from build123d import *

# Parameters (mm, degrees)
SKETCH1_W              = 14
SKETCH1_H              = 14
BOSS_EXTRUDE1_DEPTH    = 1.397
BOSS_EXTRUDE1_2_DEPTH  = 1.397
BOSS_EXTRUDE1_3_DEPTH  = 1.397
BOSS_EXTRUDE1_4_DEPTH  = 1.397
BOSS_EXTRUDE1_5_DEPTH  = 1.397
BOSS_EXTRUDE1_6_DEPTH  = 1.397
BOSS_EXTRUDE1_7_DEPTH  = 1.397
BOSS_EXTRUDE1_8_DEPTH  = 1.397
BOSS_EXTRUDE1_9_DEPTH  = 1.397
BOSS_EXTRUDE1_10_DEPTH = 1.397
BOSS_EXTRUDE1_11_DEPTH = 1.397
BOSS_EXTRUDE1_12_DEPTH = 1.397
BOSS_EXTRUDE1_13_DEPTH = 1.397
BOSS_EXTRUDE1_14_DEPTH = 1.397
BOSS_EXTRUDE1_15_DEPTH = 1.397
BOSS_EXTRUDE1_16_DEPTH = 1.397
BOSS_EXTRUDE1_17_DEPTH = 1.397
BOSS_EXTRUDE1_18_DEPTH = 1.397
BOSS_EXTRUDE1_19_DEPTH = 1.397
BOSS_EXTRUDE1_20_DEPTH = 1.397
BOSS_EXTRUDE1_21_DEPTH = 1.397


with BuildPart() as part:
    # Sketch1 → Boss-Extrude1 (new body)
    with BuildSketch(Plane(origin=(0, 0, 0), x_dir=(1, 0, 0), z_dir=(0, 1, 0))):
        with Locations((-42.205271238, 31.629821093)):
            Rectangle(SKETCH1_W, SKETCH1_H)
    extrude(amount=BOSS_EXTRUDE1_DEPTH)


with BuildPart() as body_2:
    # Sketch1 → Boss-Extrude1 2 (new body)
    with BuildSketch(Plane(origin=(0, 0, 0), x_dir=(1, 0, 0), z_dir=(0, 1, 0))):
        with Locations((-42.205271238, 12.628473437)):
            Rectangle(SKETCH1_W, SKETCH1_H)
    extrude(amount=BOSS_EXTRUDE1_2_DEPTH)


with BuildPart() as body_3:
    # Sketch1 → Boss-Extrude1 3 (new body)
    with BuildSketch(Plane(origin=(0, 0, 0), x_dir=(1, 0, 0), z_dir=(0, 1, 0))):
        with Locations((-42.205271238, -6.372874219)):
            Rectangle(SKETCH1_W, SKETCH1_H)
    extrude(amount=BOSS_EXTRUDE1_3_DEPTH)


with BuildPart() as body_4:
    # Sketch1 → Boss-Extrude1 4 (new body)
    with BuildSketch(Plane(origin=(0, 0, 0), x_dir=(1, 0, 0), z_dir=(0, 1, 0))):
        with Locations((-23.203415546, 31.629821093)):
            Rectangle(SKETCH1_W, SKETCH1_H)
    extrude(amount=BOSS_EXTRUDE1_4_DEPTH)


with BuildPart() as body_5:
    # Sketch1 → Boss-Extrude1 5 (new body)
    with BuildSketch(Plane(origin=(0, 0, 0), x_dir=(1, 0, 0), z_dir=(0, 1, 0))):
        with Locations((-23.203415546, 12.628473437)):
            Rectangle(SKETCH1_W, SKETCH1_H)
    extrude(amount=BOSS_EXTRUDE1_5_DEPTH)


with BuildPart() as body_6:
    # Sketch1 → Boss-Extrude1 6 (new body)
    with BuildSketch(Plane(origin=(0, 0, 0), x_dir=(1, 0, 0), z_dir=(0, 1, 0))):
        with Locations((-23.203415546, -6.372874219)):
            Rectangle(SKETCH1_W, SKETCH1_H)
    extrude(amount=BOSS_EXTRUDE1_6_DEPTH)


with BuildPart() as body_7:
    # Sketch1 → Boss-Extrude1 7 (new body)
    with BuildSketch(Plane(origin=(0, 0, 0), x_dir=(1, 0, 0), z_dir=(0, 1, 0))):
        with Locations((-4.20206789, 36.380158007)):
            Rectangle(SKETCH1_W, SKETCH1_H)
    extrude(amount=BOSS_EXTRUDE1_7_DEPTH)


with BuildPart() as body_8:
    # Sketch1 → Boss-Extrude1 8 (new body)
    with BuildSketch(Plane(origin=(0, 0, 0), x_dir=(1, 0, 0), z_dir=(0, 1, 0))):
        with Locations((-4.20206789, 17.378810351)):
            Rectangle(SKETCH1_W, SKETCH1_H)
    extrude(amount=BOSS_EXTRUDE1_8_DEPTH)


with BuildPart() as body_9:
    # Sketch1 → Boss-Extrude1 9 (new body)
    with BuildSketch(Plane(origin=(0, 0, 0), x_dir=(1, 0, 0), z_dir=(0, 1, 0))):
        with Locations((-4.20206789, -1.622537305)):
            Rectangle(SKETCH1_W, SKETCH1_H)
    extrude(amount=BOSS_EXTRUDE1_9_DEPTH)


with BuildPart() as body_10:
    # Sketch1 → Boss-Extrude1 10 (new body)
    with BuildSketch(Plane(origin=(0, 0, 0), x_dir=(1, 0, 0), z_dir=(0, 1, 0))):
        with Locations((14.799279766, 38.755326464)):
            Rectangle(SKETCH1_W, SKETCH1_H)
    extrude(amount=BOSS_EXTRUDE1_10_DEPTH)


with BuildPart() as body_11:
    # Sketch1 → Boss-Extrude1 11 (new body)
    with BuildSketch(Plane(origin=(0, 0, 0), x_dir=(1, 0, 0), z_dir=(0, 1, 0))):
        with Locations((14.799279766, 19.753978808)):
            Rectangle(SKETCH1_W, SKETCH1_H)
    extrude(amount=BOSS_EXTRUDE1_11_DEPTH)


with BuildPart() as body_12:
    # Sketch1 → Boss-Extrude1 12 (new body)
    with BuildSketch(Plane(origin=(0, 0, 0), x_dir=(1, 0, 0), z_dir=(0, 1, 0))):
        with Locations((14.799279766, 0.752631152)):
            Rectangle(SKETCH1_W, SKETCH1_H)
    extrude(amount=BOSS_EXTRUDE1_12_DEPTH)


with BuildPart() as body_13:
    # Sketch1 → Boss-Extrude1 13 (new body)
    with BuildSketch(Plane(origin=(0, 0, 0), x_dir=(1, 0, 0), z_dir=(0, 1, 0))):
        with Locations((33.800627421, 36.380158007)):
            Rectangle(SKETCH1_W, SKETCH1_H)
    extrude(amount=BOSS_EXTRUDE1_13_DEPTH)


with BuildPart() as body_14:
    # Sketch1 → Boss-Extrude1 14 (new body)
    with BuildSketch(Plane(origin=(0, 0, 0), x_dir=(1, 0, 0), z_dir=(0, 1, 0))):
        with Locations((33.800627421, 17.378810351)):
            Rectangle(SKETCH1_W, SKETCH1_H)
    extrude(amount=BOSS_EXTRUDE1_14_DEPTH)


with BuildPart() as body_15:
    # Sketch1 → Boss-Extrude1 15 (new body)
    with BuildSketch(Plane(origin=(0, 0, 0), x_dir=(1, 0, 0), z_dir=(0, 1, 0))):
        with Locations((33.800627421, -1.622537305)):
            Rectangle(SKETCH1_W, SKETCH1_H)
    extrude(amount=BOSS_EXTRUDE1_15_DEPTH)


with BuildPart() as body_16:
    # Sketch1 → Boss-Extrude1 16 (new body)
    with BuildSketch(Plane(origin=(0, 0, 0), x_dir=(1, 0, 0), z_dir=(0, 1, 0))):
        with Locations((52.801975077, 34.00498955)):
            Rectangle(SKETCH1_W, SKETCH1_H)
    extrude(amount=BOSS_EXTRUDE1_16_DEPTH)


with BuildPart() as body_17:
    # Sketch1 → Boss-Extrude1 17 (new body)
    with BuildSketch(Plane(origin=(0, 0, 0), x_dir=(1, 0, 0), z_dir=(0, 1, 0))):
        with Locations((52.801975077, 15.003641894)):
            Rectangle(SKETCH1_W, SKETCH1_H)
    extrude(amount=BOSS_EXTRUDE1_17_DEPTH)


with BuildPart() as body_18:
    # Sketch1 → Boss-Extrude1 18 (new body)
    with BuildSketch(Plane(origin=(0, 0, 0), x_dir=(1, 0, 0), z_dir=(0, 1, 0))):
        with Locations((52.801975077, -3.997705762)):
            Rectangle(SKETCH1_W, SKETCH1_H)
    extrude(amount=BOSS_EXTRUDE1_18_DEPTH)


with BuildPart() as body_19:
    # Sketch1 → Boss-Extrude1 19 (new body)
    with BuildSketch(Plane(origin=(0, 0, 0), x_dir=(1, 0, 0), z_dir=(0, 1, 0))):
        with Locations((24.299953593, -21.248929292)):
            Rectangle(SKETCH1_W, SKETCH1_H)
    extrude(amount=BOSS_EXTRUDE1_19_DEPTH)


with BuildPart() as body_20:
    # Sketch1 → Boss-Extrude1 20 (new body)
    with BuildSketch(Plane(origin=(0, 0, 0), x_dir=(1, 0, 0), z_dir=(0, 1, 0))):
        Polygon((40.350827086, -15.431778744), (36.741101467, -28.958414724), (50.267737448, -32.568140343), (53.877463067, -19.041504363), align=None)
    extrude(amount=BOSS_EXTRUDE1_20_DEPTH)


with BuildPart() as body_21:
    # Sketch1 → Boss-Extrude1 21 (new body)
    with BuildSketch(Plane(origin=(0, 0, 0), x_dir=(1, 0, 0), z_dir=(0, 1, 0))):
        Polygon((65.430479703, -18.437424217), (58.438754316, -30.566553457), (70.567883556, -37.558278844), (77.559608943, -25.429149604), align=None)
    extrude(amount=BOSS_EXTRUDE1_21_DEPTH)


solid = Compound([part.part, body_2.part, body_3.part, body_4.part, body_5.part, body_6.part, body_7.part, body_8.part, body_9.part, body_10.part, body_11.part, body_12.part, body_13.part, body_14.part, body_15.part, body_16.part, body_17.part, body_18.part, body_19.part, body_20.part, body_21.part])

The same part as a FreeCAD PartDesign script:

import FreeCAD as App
import Part
import Sketcher
Q = App.Units.Quantity

doc = App.newDocument("Part")
params = doc.addObject("Spreadsheet::Sheet", "Params")
for row, (alias, value) in enumerate([
    ("sketch1_width", "14 mm"),
    ("pad1_length", "1.397 mm"),
    ("sketch2_width", "14 mm"),
    ("pad2_length", "1.397 mm"),
    ("sketch3_width", "14 mm"),
    ("pad3_length", "1.397 mm"),
    ("sketch4_width", "14 mm"),
    ("pad4_length", "1.397 mm"),
    ("sketch5_width", "14 mm"),
    ("pad5_length", "1.397 mm"),
    ("sketch6_width", "14 mm"),
    ("pad6_length", "1.397 mm"),
    ("sketch7_width", "14 mm"),
    ("pad7_length", "1.397 mm"),
    ("sketch8_width", "14 mm"),
    ("pad8_length", "1.397 mm"),
    ("sketch9_width", "14 mm"),
    ("pad9_length", "1.397 mm"),
    ("sketch10_width", "14 mm"),
    ("pad10_length", "1.397 mm"),
    ("sketch11_width", "14 mm"),
    ("pad11_length", "1.397 mm"),
    ("sketch12_width", "14 mm"),
    ("pad12_length", "1.397 mm"),
    ("sketch13_width", "14 mm"),
    ("pad13_length", "1.397 mm"),
    ("sketch14_width", "14 mm"),
    ("pad14_length", "1.397 mm"),
    ("sketch15_width", "14 mm"),
    ("pad15_length", "1.397 mm"),
    ("sketch16_width", "14 mm"),
    ("pad16_length", "1.397 mm"),
    ("sketch17_width", "14 mm"),
    ("pad17_length", "1.397 mm"),
    ("sketch18_width", "14 mm"),
    ("pad18_length", "1.397 mm"),
    ("sketch19_width", "14 mm"),
    ("pad19_length", "1.397 mm"),
    ("sketch20_length", "14 mm"),
    ("pad20_length", "1.397 mm"),
    ("sketch21_length", "14 mm"),
    ("pad21_length", "1.397 mm"),
], start=1):
    params.set(f"A{row}", alias)
    params.set(f"B{row}", "=" + value)
    params.setAlias(f"B{row}", alias)

body = doc.addObject("PartDesign::Body", "Body")

# Sketch on XZ plane
sketch1 = doc.addObject("Sketcher::SketchObject", "Sketch")
body.addObject(sketch1)
sketch1.AttachmentSupport = (doc.XZ_Plane, [""])
sketch1.MapMode = "FlatFace"
sketch1.addGeometry([
    Part.LineSegment(App.Vector(-49, -39, 0), App.Vector(-49, -25, 0)),
    Part.LineSegment(App.Vector(-49, -25, 0), App.Vector(-35, -25, 0)),
    Part.LineSegment(App.Vector(-35, -25, 0), App.Vector(-35, -39, 0)),
    Part.LineSegment(App.Vector(-35, -39, 0), App.Vector(-49, -39, 0)),
], False)
sketch1.addConstraint([
    Sketcher.Constraint("Coincident", 0, 2, 1, 1),
    Sketcher.Constraint("Coincident", 1, 2, 2, 1),
    Sketcher.Constraint("Coincident", 2, 2, 3, 1),
    Sketcher.Constraint("Coincident", 3, 2, 0, 1),
    Sketcher.Constraint("Vertical", 0),
    Sketcher.Constraint("Horizontal", 1),
    Sketcher.Constraint("Vertical", 2),
    Sketcher.Constraint("Horizontal", 3),
    Sketcher.Constraint("Equal", 3, 0),
    Sketcher.Constraint("DistanceX", 1, 1, 1, 2, Q("14 mm")),
    Sketcher.Constraint("DistanceX", 0, 2, -1, 1, Q("49.205271 mm")),
    Sketcher.Constraint("DistanceY", 0, 2, -1, 1, Q("24.629821 mm")),
])
sketch1.setExpression("Constraints[9]", "Params.sketch1_width")
pad1 = doc.addObject("PartDesign::Pad", "Pad")
body.addObject(pad1)
pad1.Profile = sketch1
pad1.setExpression("Length", "Params.pad1_length")
pad1.Reversed = True
body2 = doc.addObject("PartDesign::Body", "Body001")

# Sketch on XZ plane
sketch2 = doc.addObject("Sketcher::SketchObject", "Sketch001")
body2.addObject(sketch2)
sketch2.AttachmentSupport = (doc.getObject("XZ_Plane001"), [""])
sketch2.MapMode = "FlatFace"
sketch2.addGeometry([
    Part.LineSegment(App.Vector(-49, -20, 0), App.Vector(-49, -6, 0)),
    Part.LineSegment(App.Vector(-49, -6, 0), App.Vector(-35, -6, 0)),
    Part.LineSegment(App.Vector(-35, -6, 0), App.Vector(-35, -20, 0)),
    Part.LineSegment(App.Vector(-35, -20, 0), App.Vector(-49, -20, 0)),
], False)
sketch2.addConstraint([
    Sketcher.Constraint("Coincident", 0, 2, 1, 1),
    Sketcher.Constraint("Coincident", 1, 2, 2, 1),
    Sketcher.Constraint("Coincident", 2, 2, 3, 1),
    Sketcher.Constraint("Coincident", 3, 2, 0, 1),
    Sketcher.Constraint("Vertical", 0),
    Sketcher.Constraint("Horizontal", 1),
    Sketcher.Constraint("Vertical", 2),
    Sketcher.Constraint("Horizontal", 3),
    Sketcher.Constraint("Equal", 3, 0),
    Sketcher.Constraint("DistanceX", 1, 1, 1, 2, Q("14 mm")),
    Sketcher.Constraint("DistanceX", 0, 2, -1, 1, Q("49.205271 mm")),
    Sketcher.Constraint("DistanceY", 0, 2, -1, 1, Q("5.628473 mm")),
])
sketch2.setExpression("Constraints[9]", "Params.sketch2_width")
pad2 = doc.addObject("PartDesign::Pad", "Pad001")
body2.addObject(pad2)
pad2.Profile = sketch2
pad2.setExpression("Length", "Params.pad2_length")
pad2.Reversed = True
body3 = doc.addObject("PartDesign::Body", "Body002")

# Sketch on XZ plane
sketch3 = doc.addObject("Sketcher::SketchObject", "Sketch002")
body3.addObject(sketch3)
sketch3.AttachmentSupport = (doc.getObject("XZ_Plane002"), [""])
sketch3.MapMode = "FlatFace"
sketch3.addGeometry([
    Part.LineSegment(App.Vector(-49, -1, 0), App.Vector(-49, 13, 0)),
    Part.LineSegment(App.Vector(-49, 13, 0), App.Vector(-35, 13, 0)),
    Part.LineSegment(App.Vector(-35, 13, 0), App.Vector(-35, -1, 0)),
    Part.LineSegment(App.Vector(-35, -1, 0), App.Vector(-49, -1, 0)),
], False)
sketch3.addConstraint([
    Sketcher.Constraint("Coincident", 0, 2, 1, 1),
    Sketcher.Constraint("Coincident", 1, 2, 2, 1),
    Sketcher.Constraint("Coincident", 2, 2, 3, 1),
    Sketcher.Constraint("Coincident", 3, 2, 0, 1),
    Sketcher.Constraint("Vertical", 0),
    Sketcher.Constraint("Horizontal", 1),
    Sketcher.Constraint("Vertical", 2),
    Sketcher.Constraint("Horizontal", 3),
    Sketcher.Constraint("Equal", 3, 0),
    Sketcher.Constraint("DistanceX", 1, 1, 1, 2, Q("14 mm")),
    Sketcher.Constraint("DistanceX", 0, 2, -1, 1, Q("49.205271 mm")),
    Sketcher.Constraint("DistanceY", -1, 1, 0, 2, Q("13.372874 mm")),
])
sketch3.setExpression("Constraints[9]", "Params.sketch3_width")
pad3 = doc.addObject("PartDesign::Pad", "Pad002")
body3.addObject(pad3)
pad3.Profile = sketch3
pad3.setExpression("Length", "Params.pad3_length")
pad3.Reversed = True
body4 = doc.addObject("PartDesign::Body", "Body003")

# Sketch on XZ plane
sketch4 = doc.addObject("Sketcher::SketchObject", "Sketch003")
body4.addObject(sketch4)
sketch4.AttachmentSupport = (doc.getObject("XZ_Plane003"), [""])
sketch4.MapMode = "FlatFace"
sketch4.addGeometry([
    Part.LineSegment(App.Vector(-30, -39, 0), App.Vector(-30, -25, 0)),
    Part.LineSegment(App.Vector(-30, -25, 0), App.Vector(-16, -25, 0)),
    Part.LineSegment(App.Vector(-16, -25, 0), App.Vector(-16, -39, 0)),
    Part.LineSegment(App.Vector(-16, -39, 0), App.Vector(-30, -39, 0)),
], False)
sketch4.addConstraint([
    Sketcher.Constraint("Coincident", 0, 2, 1, 1),
    Sketcher.Constraint("Coincident", 1, 2, 2, 1),
    Sketcher.Constraint("Coincident", 2, 2, 3, 1),
    Sketcher.Constraint("Coincident", 3, 2, 0, 1),
    Sketcher.Constraint("Vertical", 0),
    Sketcher.Constraint("Horizontal", 1),
    Sketcher.Constraint("Vertical", 2),
    Sketcher.Constraint("Horizontal", 3),
    Sketcher.Constraint("Equal", 3, 0),
    Sketcher.Constraint("DistanceX", 1, 1, 1, 2, Q("14 mm")),
    Sketcher.Constraint("DistanceY", 0, 2, -1, 1, Q("24.629821 mm")),
    Sketcher.Constraint("DistanceX", 0, 2, -1, 1, Q("30.203416 mm")),
])
sketch4.setExpression("Constraints[9]", "Params.sketch4_width")
pad4 = doc.addObject("PartDesign::Pad", "Pad003")
body4.addObject(pad4)
pad4.Profile = sketch4
pad4.setExpression("Length", "Params.pad4_length")
pad4.Reversed = True
body5 = doc.addObject("PartDesign::Body", "Body004")

# Sketch on XZ plane
sketch5 = doc.addObject("Sketcher::SketchObject", "Sketch004")
body5.addObject(sketch5)
sketch5.AttachmentSupport = (doc.getObject("XZ_Plane004"), [""])
sketch5.MapMode = "FlatFace"
sketch5.addGeometry([
    Part.LineSegment(App.Vector(-30, -20, 0), App.Vector(-30, -6, 0)),
    Part.LineSegment(App.Vector(-30, -6, 0), App.Vector(-16, -6, 0)),
    Part.LineSegment(App.Vector(-16, -6, 0), App.Vector(-16, -20, 0)),
    Part.LineSegment(App.Vector(-16, -20, 0), App.Vector(-30, -20, 0)),
], False)
sketch5.addConstraint([
    Sketcher.Constraint("Coincident", 0, 2, 1, 1),
    Sketcher.Constraint("Coincident", 1, 2, 2, 1),
    Sketcher.Constraint("Coincident", 2, 2, 3, 1),
    Sketcher.Constraint("Coincident", 3, 2, 0, 1),
    Sketcher.Constraint("Vertical", 0),
    Sketcher.Constraint("Horizontal", 1),
    Sketcher.Constraint("Vertical", 2),
    Sketcher.Constraint("Horizontal", 3),
    Sketcher.Constraint("Equal", 3, 0),
    Sketcher.Constraint("DistanceX", 1, 1, 1, 2, Q("14 mm")),
    Sketcher.Constraint("DistanceX", 0, 2, -1, 1, Q("30.203416 mm")),
    Sketcher.Constraint("DistanceY", 0, 2, -1, 1, Q("5.628473 mm")),
])
sketch5.setExpression("Constraints[9]", "Params.sketch5_width")
pad5 = doc.addObject("PartDesign::Pad", "Pad004")
body5.addObject(pad5)
pad5.Profile = sketch5
pad5.setExpression("Length", "Params.pad5_length")
pad5.Reversed = True
body6 = doc.addObject("PartDesign::Body", "Body005")

# Sketch on XZ plane
sketch6 = doc.addObject("Sketcher::SketchObject", "Sketch005")
body6.addObject(sketch6)
sketch6.AttachmentSupport = (doc.getObject("XZ_Plane005"), [""])
sketch6.MapMode = "FlatFace"
sketch6.addGeometry([
    Part.LineSegment(App.Vector(-30, -1, 0), App.Vector(-30, 13, 0)),
    Part.LineSegment(App.Vector(-30, 13, 0), App.Vector(-16, 13, 0)),
    Part.LineSegment(App.Vector(-16, 13, 0), App.Vector(-16, -1, 0)),
    Part.LineSegment(App.Vector(-16, -1, 0), App.Vector(-30, -1, 0)),
], False)
sketch6.addConstraint([
    Sketcher.Constraint("Coincident", 0, 2, 1, 1),
    Sketcher.Constraint("Coincident", 1, 2, 2, 1),
    Sketcher.Constraint("Coincident", 2, 2, 3, 1),
    Sketcher.Constraint("Coincident", 3, 2, 0, 1),
    Sketcher.Constraint("Vertical", 0),
    Sketcher.Constraint("Horizontal", 1),
    Sketcher.Constraint("Vertical", 2),
    Sketcher.Constraint("Horizontal", 3),
    Sketcher.Constraint("Equal", 3, 0),
    Sketcher.Constraint("DistanceX", 1, 1, 1, 2, Q("14 mm")),
    Sketcher.Constraint("DistanceX", 0, 2, -1, 1, Q("30.203416 mm")),
    Sketcher.Constraint("DistanceY", -1, 1, 0, 2, Q("13.372874 mm")),
])
sketch6.setExpression("Constraints[9]", "Params.sketch6_width")
pad6 = doc.addObject("PartDesign::Pad", "Pad005")
body6.addObject(pad6)
pad6.Profile = sketch6
pad6.setExpression("Length", "Params.pad6_length")
pad6.Reversed = True
body7 = doc.addObject("PartDesign::Body", "Body006")

# Sketch on XZ plane
sketch7 = doc.addObject("Sketcher::SketchObject", "Sketch006")
body7.addObject(sketch7)
sketch7.AttachmentSupport = (doc.getObject("XZ_Plane006"), [""])
sketch7.MapMode = "FlatFace"
sketch7.addGeometry([
    Part.LineSegment(App.Vector(-11, -43, 0), App.Vector(-11, -29, 0)),
    Part.LineSegment(App.Vector(-11, -29, 0), App.Vector(3, -29, 0)),
    Part.LineSegment(App.Vector(3, -29, 0), App.Vector(3, -43, 0)),
    Part.LineSegment(App.Vector(3, -43, 0), App.Vector(-11, -43, 0)),
], False)
sketch7.addConstraint([
    Sketcher.Constraint("Coincident", 0, 2, 1, 1),
    Sketcher.Constraint("Coincident", 1, 2, 2, 1),
    Sketcher.Constraint("Coincident", 2, 2, 3, 1),
    Sketcher.Constraint("Coincident", 3, 2, 0, 1),
    Sketcher.Constraint("Vertical", 0),
    Sketcher.Constraint("Horizontal", 1),
    Sketcher.Constraint("Vertical", 2),
    Sketcher.Constraint("Horizontal", 3),
    Sketcher.Constraint("Equal", 3, 0),
    Sketcher.Constraint("DistanceX", 1, 1, 1, 2, Q("14 mm")),
    Sketcher.Constraint("DistanceY", 0, 2, -1, 1, Q("29.380158 mm")),
    Sketcher.Constraint("DistanceX", 0, 2, -1, 1, Q("11.202068 mm")),
])
sketch7.setExpression("Constraints[9]", "Params.sketch7_width")
pad7 = doc.addObject("PartDesign::Pad", "Pad006")
body7.addObject(pad7)
pad7.Profile = sketch7
pad7.setExpression("Length", "Params.pad7_length")
pad7.Reversed = True
body8 = doc.addObject("PartDesign::Body", "Body007")

# Sketch on XZ plane
sketch8 = doc.addObject("Sketcher::SketchObject", "Sketch007")
body8.addObject(sketch8)
sketch8.AttachmentSupport = (doc.getObject("XZ_Plane007"), [""])
sketch8.MapMode = "FlatFace"
sketch8.addGeometry([
    Part.LineSegment(App.Vector(-11, -24, 0), App.Vector(-11, -10, 0)),
    Part.LineSegment(App.Vector(-11, -10, 0), App.Vector(3, -10, 0)),
    Part.LineSegment(App.Vector(3, -10, 0), App.Vector(3, -24, 0)),
    Part.LineSegment(App.Vector(3, -24, 0), App.Vector(-11, -24, 0)),
], False)
sketch8.addConstraint([
    Sketcher.Constraint("Coincident", 0, 2, 1, 1),
    Sketcher.Constraint("Coincident", 1, 2, 2, 1),
    Sketcher.Constraint("Coincident", 2, 2, 3, 1),
    Sketcher.Constraint("Coincident", 3, 2, 0, 1),
    Sketcher.Constraint("Vertical", 0),
    Sketcher.Constraint("Horizontal", 1),
    Sketcher.Constraint("Vertical", 2),
    Sketcher.Constraint("Horizontal", 3),
    Sketcher.Constraint("Equal", 3, 0),
    Sketcher.Constraint("DistanceX", 1, 1, 1, 2, Q("14 mm")),
    Sketcher.Constraint("DistanceY", 0, 2, -1, 1, Q("10.37881 mm")),
    Sketcher.Constraint("DistanceX", 0, 2, -1, 1, Q("11.202068 mm")),
])
sketch8.setExpression("Constraints[9]", "Params.sketch8_width")
pad8 = doc.addObject("PartDesign::Pad", "Pad007")
body8.addObject(pad8)
pad8.Profile = sketch8
pad8.setExpression("Length", "Params.pad8_length")
pad8.Reversed = True
body9 = doc.addObject("PartDesign::Body", "Body008")

# Sketch on XZ plane
sketch9 = doc.addObject("Sketcher::SketchObject", "Sketch008")
body9.addObject(sketch9)
sketch9.AttachmentSupport = (doc.getObject("XZ_Plane008"), [""])
sketch9.MapMode = "FlatFace"
sketch9.addGeometry([
    Part.LineSegment(App.Vector(-11, -5, 0), App.Vector(-11, 9, 0)),
    Part.LineSegment(App.Vector(-11, 9, 0), App.Vector(3, 9, 0)),
    Part.LineSegment(App.Vector(3, 9, 0), App.Vector(3, -5, 0)),
    Part.LineSegment(App.Vector(3, -5, 0), App.Vector(-11, -5, 0)),
], False)
sketch9.addConstraint([
    Sketcher.Constraint("Coincident", 0, 2, 1, 1),
    Sketcher.Constraint("Coincident", 1, 2, 2, 1),
    Sketcher.Constraint("Coincident", 2, 2, 3, 1),
    Sketcher.Constraint("Coincident", 3, 2, 0, 1),
    Sketcher.Constraint("Vertical", 0),
    Sketcher.Constraint("Horizontal", 1),
    Sketcher.Constraint("Vertical", 2),
    Sketcher.Constraint("Horizontal", 3),
    Sketcher.Constraint("Equal", 3, 0),
    Sketcher.Constraint("DistanceX", 1, 1, 1, 2, Q("14 mm")),
    Sketcher.Constraint("DistanceX", 0, 2, -1, 1, Q("11.202068 mm")),
    Sketcher.Constraint("DistanceY", -1, 1, 0, 2, Q("8.622537 mm")),
])
sketch9.setExpression("Constraints[9]", "Params.sketch9_width")
pad9 = doc.addObject("PartDesign::Pad", "Pad008")
body9.addObject(pad9)
pad9.Profile = sketch9
pad9.setExpression("Length", "Params.pad9_length")
pad9.Reversed = True
body10 = doc.addObject("PartDesign::Body", "Body009")

# Sketch on XZ plane
sketch10 = doc.addObject("Sketcher::SketchObject", "Sketch009")
body10.addObject(sketch10)
sketch10.AttachmentSupport = (doc.getObject("XZ_Plane009"), [""])
sketch10.MapMode = "FlatFace"
sketch10.addGeometry([
    Part.LineSegment(App.Vector(8, -46, 0), App.Vector(8, -32, 0)),
    Part.LineSegment(App.Vector(8, -32, 0), App.Vector(22, -32, 0)),
    Part.LineSegment(App.Vector(22, -32, 0), App.Vector(22, -46, 0)),
    Part.LineSegment(App.Vector(22, -46, 0), App.Vector(8, -46, 0)),
], False)
sketch10.addConstraint([
    Sketcher.Constraint("Coincident", 0, 2, 1, 1),
    Sketcher.Constraint("Coincident", 1, 2, 2, 1),
    Sketcher.Constraint("Coincident", 2, 2, 3, 1),
    Sketcher.Constraint("Coincident", 3, 2, 0, 1),
    Sketcher.Constraint("Vertical", 0),
    Sketcher.Constraint("Horizontal", 1),
    Sketcher.Constraint("Vertical", 2),
    Sketcher.Constraint("Horizontal", 3),
    Sketcher.Constraint("Equal", 3, 0),
    Sketcher.Constraint("DistanceX", 1, 1, 1, 2, Q("14 mm")),
    Sketcher.Constraint("DistanceX", -1, 1, 0, 2, Q("7.79928 mm")),
    Sketcher.Constraint("DistanceY", 0, 2, -1, 1, Q("31.755326 mm")),
])
sketch10.setExpression("Constraints[9]", "Params.sketch10_width")
pad10 = doc.addObject("PartDesign::Pad", "Pad009")
body10.addObject(pad10)
pad10.Profile = sketch10
pad10.setExpression("Length", "Params.pad10_length")
pad10.Reversed = True
body11 = doc.addObject("PartDesign::Body", "Body010")

# Sketch on XZ plane
sketch11 = doc.addObject("Sketcher::SketchObject", "Sketch010")
body11.addObject(sketch11)
sketch11.AttachmentSupport = (doc.getObject("XZ_Plane010"), [""])
sketch11.MapMode = "FlatFace"
sketch11.addGeometry([
    Part.LineSegment(App.Vector(8, -27, 0), App.Vector(8, -13, 0)),
    Part.LineSegment(App.Vector(8, -13, 0), App.Vector(22, -13, 0)),
    Part.LineSegment(App.Vector(22, -13, 0), App.Vector(22, -27, 0)),
    Part.LineSegment(App.Vector(22, -27, 0), App.Vector(8, -27, 0)),
], False)
sketch11.addConstraint([
    Sketcher.Constraint("Coincident", 0, 2, 1, 1),
    Sketcher.Constraint("Coincident", 1, 2, 2, 1),
    Sketcher.Constraint("Coincident", 2, 2, 3, 1),
    Sketcher.Constraint("Coincident", 3, 2, 0, 1),
    Sketcher.Constraint("Vertical", 0),
    Sketcher.Constraint("Horizontal", 1),
    Sketcher.Constraint("Vertical", 2),
    Sketcher.Constraint("Horizontal", 3),
    Sketcher.Constraint("Equal", 3, 0),
    Sketcher.Constraint("DistanceX", 1, 1, 1, 2, Q("14 mm")),
    Sketcher.Constraint("DistanceX", -1, 1, 0, 2, Q("7.79928 mm")),
    Sketcher.Constraint("DistanceY", 0, 2, -1, 1, Q("12.753979 mm")),
])
sketch11.setExpression("Constraints[9]", "Params.sketch11_width")
pad11 = doc.addObject("PartDesign::Pad", "Pad010")
body11.addObject(pad11)
pad11.Profile = sketch11
pad11.setExpression("Length", "Params.pad11_length")
pad11.Reversed = True
body12 = doc.addObject("PartDesign::Body", "Body011")

# Sketch on XZ plane
sketch12 = doc.addObject("Sketcher::SketchObject", "Sketch011")
body12.addObject(sketch12)
sketch12.AttachmentSupport = (doc.getObject("XZ_Plane011"), [""])
sketch12.MapMode = "FlatFace"
sketch12.addGeometry([
    Part.LineSegment(App.Vector(8, -8, 0), App.Vector(8, 6, 0)),
    Part.LineSegment(App.Vector(8, 6, 0), App.Vector(22, 6, 0)),
    Part.LineSegment(App.Vector(22, 6, 0), App.Vector(22, -8, 0)),
    Part.LineSegment(App.Vector(22, -8, 0), App.Vector(8, -8, 0)),
], False)
sketch12.addConstraint([
    Sketcher.Constraint("Coincident", 0, 2, 1, 1),
    Sketcher.Constraint("Coincident", 1, 2, 2, 1),
    Sketcher.Constraint("Coincident", 2, 2, 3, 1),
    Sketcher.Constraint("Coincident", 3, 2, 0, 1),
    Sketcher.Constraint("Vertical", 0),
    Sketcher.Constraint("Horizontal", 1),
    Sketcher.Constraint("Vertical", 2),
    Sketcher.Constraint("Horizontal", 3),
    Sketcher.Constraint("Equal", 3, 0),
    Sketcher.Constraint("DistanceX", 1, 1, 1, 2, Q("14 mm")),
    Sketcher.Constraint("DistanceX", -1, 1, 0, 2, Q("7.79928 mm")),
    Sketcher.Constraint("DistanceY", -1, 1, 0, 2, Q("6.247369 mm")),
])
sketch12.setExpression("Constraints[9]", "Params.sketch12_width")
pad12 = doc.addObject("PartDesign::Pad", "Pad011")
body12.addObject(pad12)
pad12.Profile = sketch12
pad12.setExpression("Length", "Params.pad12_length")
pad12.Reversed = True
body13 = doc.addObject("PartDesign::Body", "Body012")

# Sketch on XZ plane
sketch13 = doc.addObject("Sketcher::SketchObject", "Sketch012")
body13.addObject(sketch13)
sketch13.AttachmentSupport = (doc.getObject("XZ_Plane012"), [""])
sketch13.MapMode = "FlatFace"
sketch13.addGeometry([
    Part.LineSegment(App.Vector(27, -43, 0), App.Vector(27, -29, 0)),
    Part.LineSegment(App.Vector(27, -29, 0), App.Vector(41, -29, 0)),
    Part.LineSegment(App.Vector(41, -29, 0), App.Vector(41, -43, 0)),
    Part.LineSegment(App.Vector(41, -43, 0), App.Vector(27, -43, 0)),
], False)
sketch13.addConstraint([
    Sketcher.Constraint("Coincident", 0, 2, 1, 1),
    Sketcher.Constraint("Coincident", 1, 2, 2, 1),
    Sketcher.Constraint("Coincident", 2, 2, 3, 1),
    Sketcher.Constraint("Coincident", 3, 2, 0, 1),
    Sketcher.Constraint("Vertical", 0),
    Sketcher.Constraint("Horizontal", 1),
    Sketcher.Constraint("Vertical", 2),
    Sketcher.Constraint("Horizontal", 3),
    Sketcher.Constraint("Equal", 3, 0),
    Sketcher.Constraint("DistanceX", 1, 1, 1, 2, Q("14 mm")),
    Sketcher.Constraint("DistanceY", 0, 2, -1, 1, Q("29.380158 mm")),
    Sketcher.Constraint("DistanceX", -1, 1, 0, 2, Q("26.800627 mm")),
])
sketch13.setExpression("Constraints[9]", "Params.sketch13_width")
pad13 = doc.addObject("PartDesign::Pad", "Pad012")
body13.addObject(pad13)
pad13.Profile = sketch13
pad13.setExpression("Length", "Params.pad13_length")
pad13.Reversed = True
body14 = doc.addObject("PartDesign::Body", "Body013")

# Sketch on XZ plane
sketch14 = doc.addObject("Sketcher::SketchObject", "Sketch013")
body14.addObject(sketch14)
sketch14.AttachmentSupport = (doc.getObject("XZ_Plane013"), [""])
sketch14.MapMode = "FlatFace"
sketch14.addGeometry([
    Part.LineSegment(App.Vector(27, -24, 0), App.Vector(27, -10, 0)),
    Part.LineSegment(App.Vector(27, -10, 0), App.Vector(41, -10, 0)),
    Part.LineSegment(App.Vector(41, -10, 0), App.Vector(41, -24, 0)),
    Part.LineSegment(App.Vector(41, -24, 0), App.Vector(27, -24, 0)),
], False)
sketch14.addConstraint([
    Sketcher.Constraint("Coincident", 0, 2, 1, 1),
    Sketcher.Constraint("Coincident", 1, 2, 2, 1),
    Sketcher.Constraint("Coincident", 2, 2, 3, 1),
    Sketcher.Constraint("Coincident", 3, 2, 0, 1),
    Sketcher.Constraint("Vertical", 0),
    Sketcher.Constraint("Horizontal", 1),
    Sketcher.Constraint("Vertical", 2),
    Sketcher.Constraint("Horizontal", 3),
    Sketcher.Constraint("Equal", 3, 0),
    Sketcher.Constraint("DistanceX", 1, 1, 1, 2, Q("14 mm")),
    Sketcher.Constraint("DistanceY", 0, 2, -1, 1, Q("10.37881 mm")),
    Sketcher.Constraint("DistanceX", -1, 1, 0, 2, Q("26.800627 mm")),
])
sketch14.setExpression("Constraints[9]", "Params.sketch14_width")
pad14 = doc.addObject("PartDesign::Pad", "Pad013")
body14.addObject(pad14)
pad14.Profile = sketch14
pad14.setExpression("Length", "Params.pad14_length")
pad14.Reversed = True
body15 = doc.addObject("PartDesign::Body", "Body014")

# Sketch on XZ plane
sketch15 = doc.addObject("Sketcher::SketchObject", "Sketch014")
body15.addObject(sketch15)
sketch15.AttachmentSupport = (doc.getObject("XZ_Plane014"), [""])
sketch15.MapMode = "FlatFace"
sketch15.addGeometry([
    Part.LineSegment(App.Vector(27, -5, 0), App.Vector(27, 9, 0)),
    Part.LineSegment(App.Vector(27, 9, 0), App.Vector(41, 9, 0)),
    Part.LineSegment(App.Vector(41, 9, 0), App.Vector(41, -5, 0)),
    Part.LineSegment(App.Vector(41, -5, 0), App.Vector(27, -5, 0)),
], False)
sketch15.addConstraint([
    Sketcher.Constraint("Coincident", 0, 2, 1, 1),
    Sketcher.Constraint("Coincident", 1, 2, 2, 1),
    Sketcher.Constraint("Coincident", 2, 2, 3, 1),
    Sketcher.Constraint("Coincident", 3, 2, 0, 1),
    Sketcher.Constraint("Vertical", 0),
    Sketcher.Constraint("Horizontal", 1),
    Sketcher.Constraint("Vertical", 2),
    Sketcher.Constraint("Horizontal", 3),
    Sketcher.Constraint("Equal", 3, 0),
    Sketcher.Constraint("DistanceX", 1, 1, 1, 2, Q("14 mm")),
    Sketcher.Constraint("DistanceX", -1, 1, 0, 2, Q("26.800627 mm")),
    Sketcher.Constraint("DistanceY", -1, 1, 0, 2, Q("8.622537 mm")),
])
sketch15.setExpression("Constraints[9]", "Params.sketch15_width")
pad15 = doc.addObject("PartDesign::Pad", "Pad014")
body15.addObject(pad15)
pad15.Profile = sketch15
pad15.setExpression("Length", "Params.pad15_length")
pad15.Reversed = True
body16 = doc.addObject("PartDesign::Body", "Body015")

# Sketch on XZ plane
sketch16 = doc.addObject("Sketcher::SketchObject", "Sketch015")
body16.addObject(sketch16)
sketch16.AttachmentSupport = (doc.getObject("XZ_Plane015"), [""])
sketch16.MapMode = "FlatFace"
sketch16.addGeometry([
    Part.LineSegment(App.Vector(46, -41, 0), App.Vector(46, -27, 0)),
    Part.LineSegment(App.Vector(46, -27, 0), App.Vector(60, -27, 0)),
    Part.LineSegment(App.Vector(60, -27, 0), App.Vector(60, -41, 0)),
    Part.LineSegment(App.Vector(60, -41, 0), App.Vector(46, -41, 0)),
], False)
sketch16.addConstraint([
    Sketcher.Constraint("Coincident", 0, 2, 1, 1),
    Sketcher.Constraint("Coincident", 1, 2, 2, 1),
    Sketcher.Constraint("Coincident", 2, 2, 3, 1),
    Sketcher.Constraint("Coincident", 3, 2, 0, 1),
    Sketcher.Constraint("Vertical", 0),
    Sketcher.Constraint("Horizontal", 1),
    Sketcher.Constraint("Vertical", 2),
    Sketcher.Constraint("Horizontal", 3),
    Sketcher.Constraint("Equal", 3, 0),
    Sketcher.Constraint("DistanceX", 1, 1, 1, 2, Q("14 mm")),
    Sketcher.Constraint("DistanceY", 0, 2, -1, 1, Q("27.00499 mm")),
    Sketcher.Constraint("DistanceX", -1, 1, 0, 2, Q("45.801975 mm")),
])
sketch16.setExpression("Constraints[9]", "Params.sketch16_width")
pad16 = doc.addObject("PartDesign::Pad", "Pad015")
body16.addObject(pad16)
pad16.Profile = sketch16
pad16.setExpression("Length", "Params.pad16_length")
pad16.Reversed = True
body17 = doc.addObject("PartDesign::Body", "Body016")

# Sketch on XZ plane
sketch17 = doc.addObject("Sketcher::SketchObject", "Sketch016")
body17.addObject(sketch17)
sketch17.AttachmentSupport = (doc.getObject("XZ_Plane016"), [""])
sketch17.MapMode = "FlatFace"
sketch17.addGeometry([
    Part.LineSegment(App.Vector(46, -22, 0), App.Vector(46, -8, 0)),
    Part.LineSegment(App.Vector(46, -8, 0), App.Vector(60, -8, 0)),
    Part.LineSegment(App.Vector(60, -8, 0), App.Vector(60, -22, 0)),
    Part.LineSegment(App.Vector(60, -22, 0), App.Vector(46, -22, 0)),
], False)
sketch17.addConstraint([
    Sketcher.Constraint("Coincident", 0, 2, 1, 1),
    Sketcher.Constraint("Coincident", 1, 2, 2, 1),
    Sketcher.Constraint("Coincident", 2, 2, 3, 1),
    Sketcher.Constraint("Coincident", 3, 2, 0, 1),
    Sketcher.Constraint("Vertical", 0),
    Sketcher.Constraint("Horizontal", 1),
    Sketcher.Constraint("Vertical", 2),
    Sketcher.Constraint("Horizontal", 3),
    Sketcher.Constraint("Equal", 3, 0),
    Sketcher.Constraint("DistanceX", 1, 1, 1, 2, Q("14 mm")),
    Sketcher.Constraint("DistanceY", 0, 2, -1, 1, Q("8.003642 mm")),
    Sketcher.Constraint("DistanceX", -1, 1, 0, 2, Q("45.801975 mm")),
])
sketch17.setExpression("Constraints[9]", "Params.sketch17_width")
pad17 = doc.addObject("PartDesign::Pad", "Pad016")
body17.addObject(pad17)
pad17.Profile = sketch17
pad17.setExpression("Length", "Params.pad17_length")
pad17.Reversed = True
body18 = doc.addObject("PartDesign::Body", "Body017")

# Sketch on XZ plane
sketch18 = doc.addObject("Sketcher::SketchObject", "Sketch017")
body18.addObject(sketch18)
sketch18.AttachmentSupport = (doc.getObject("XZ_Plane017"), [""])
sketch18.MapMode = "FlatFace"
sketch18.addGeometry([
    Part.LineSegment(App.Vector(46, -3, 0), App.Vector(46, 11, 0)),
    Part.LineSegment(App.Vector(46, 11, 0), App.Vector(60, 11, 0)),
    Part.LineSegment(App.Vector(60, 11, 0), App.Vector(60, -3, 0)),
    Part.LineSegment(App.Vector(60, -3, 0), App.Vector(46, -3, 0)),
], False)
sketch18.addConstraint([
    Sketcher.Constraint("Coincident", 0, 2, 1, 1),
    Sketcher.Constraint("Coincident", 1, 2, 2, 1),
    Sketcher.Constraint("Coincident", 2, 2, 3, 1),
    Sketcher.Constraint("Coincident", 3, 2, 0, 1),
    Sketcher.Constraint("Vertical", 0),
    Sketcher.Constraint("Horizontal", 1),
    Sketcher.Constraint("Vertical", 2),
    Sketcher.Constraint("Horizontal", 3),
    Sketcher.Constraint("Equal", 3, 0),
    Sketcher.Constraint("DistanceX", 1, 1, 1, 2, Q("14 mm")),
    Sketcher.Constraint("DistanceX", -1, 1, 0, 2, Q("45.801975 mm")),
    Sketcher.Constraint("DistanceY", -1, 1, 0, 2, Q("10.997706 mm")),
])
sketch18.setExpression("Constraints[9]", "Params.sketch18_width")
pad18 = doc.addObject("PartDesign::Pad", "Pad017")
body18.addObject(pad18)
pad18.Profile = sketch18
pad18.setExpression("Length", "Params.pad18_length")
pad18.Reversed = True
body19 = doc.addObject("PartDesign::Body", "Body018")

# Sketch on XZ plane
sketch19 = doc.addObject("Sketcher::SketchObject", "Sketch018")
body19.addObject(sketch19)
sketch19.AttachmentSupport = (doc.getObject("XZ_Plane018"), [""])
sketch19.MapMode = "FlatFace"
sketch19.addGeometry([
    Part.LineSegment(App.Vector(17, 14, 0), App.Vector(17, 28, 0)),
    Part.LineSegment(App.Vector(17, 28, 0), App.Vector(31, 28, 0)),
    Part.LineSegment(App.Vector(31, 28, 0), App.Vector(31, 14, 0)),
    Part.LineSegment(App.Vector(31, 14, 0), App.Vector(17, 14, 0)),
], False)
sketch19.addConstraint([
    Sketcher.Constraint("Coincident", 0, 2, 1, 1),
    Sketcher.Constraint("Coincident", 1, 2, 2, 1),
    Sketcher.Constraint("Coincident", 2, 2, 3, 1),
    Sketcher.Constraint("Coincident", 3, 2, 0, 1),
    Sketcher.Constraint("Vertical", 0),
    Sketcher.Constraint("Horizontal", 1),
    Sketcher.Constraint("Vertical", 2),
    Sketcher.Constraint("Horizontal", 3),
    Sketcher.Constraint("Equal", 3, 0),
    Sketcher.Constraint("DistanceX", 1, 1, 1, 2, Q("14 mm")),
    Sketcher.Constraint("DistanceY", -1, 1, 0, 2, Q("28.248929 mm")),
    Sketcher.Constraint("DistanceX", -1, 1, 0, 2, Q("17.299954 mm")),
])
sketch19.setExpression("Constraints[9]", "Params.sketch19_width")
pad19 = doc.addObject("PartDesign::Pad", "Pad018")
body19.addObject(pad19)
pad19.Profile = sketch19
pad19.setExpression("Length", "Params.pad19_length")
pad19.Reversed = True
body20 = doc.addObject("PartDesign::Body", "Body019")

# Sketch on XZ plane
sketch20 = doc.addObject("Sketcher::SketchObject", "Sketch019")
body20.addObject(sketch20)
sketch20.AttachmentSupport = (doc.getObject("XZ_Plane019"), [""])
sketch20.MapMode = "FlatFace"
sketch20.addGeometry([
    Part.LineSegment(App.Vector(40, 15, 0), App.Vector(37, 29, 0)),
    Part.LineSegment(App.Vector(37, 29, 0), App.Vector(50, 33, 0)),
    Part.LineSegment(App.Vector(50, 33, 0), App.Vector(54, 19, 0)),
    Part.LineSegment(App.Vector(54, 19, 0), App.Vector(40, 15, 0)),
], False)
sketch20.addConstraint([
    Sketcher.Constraint("Coincident", 0, 2, 1, 1),
    Sketcher.Constraint("Coincident", 1, 2, 2, 1),
    Sketcher.Constraint("Coincident", 2, 2, 3, 1),
    Sketcher.Constraint("Coincident", 3, 2, 0, 1),
    Sketcher.Constraint("Perpendicular", 0, 1),
    Sketcher.Constraint("Perpendicular", 1, 2),
    Sketcher.Constraint("Perpendicular", 2, 3),
    Sketcher.Constraint("Equal", 0, 1),
    Sketcher.Constraint("Distance", 0, Q("14 mm")),
    Sketcher.Constraint("DistanceX", -1, 1, 0, 2, Q("36.741101 mm")),
    Sketcher.Constraint("DistanceY", -1, 1, 1, 2, Q("32.56814 mm")),
    Sketcher.Constraint("DistanceY", -1, 1, 3, 2, Q("15.431779 mm")),
])
sketch20.setExpression("Constraints[8]", "Params.sketch20_length")
pad20 = doc.addObject("PartDesign::Pad", "Pad019")
body20.addObject(pad20)
pad20.Profile = sketch20
pad20.setExpression("Length", "Params.pad20_length")
pad20.Reversed = True
body21 = doc.addObject("PartDesign::Body", "Body020")

# Sketch on XZ plane
sketch21 = doc.addObject("Sketcher::SketchObject", "Sketch020")
body21.addObject(sketch21)
sketch21.AttachmentSupport = (doc.getObject("XZ_Plane020"), [""])
sketch21.MapMode = "FlatFace"
sketch21.addGeometry([
    Part.LineSegment(App.Vector(65, 18, 0), App.Vector(58, 31, 0)),
    Part.LineSegment(App.Vector(58, 31, 0), App.Vector(71, 38, 0)),
    Part.LineSegment(App.Vector(71, 38, 0), App.Vector(78, 25, 0)),
    Part.LineSegment(App.Vector(78, 25, 0), App.Vector(65, 18, 0)),
], False)
sketch21.addConstraint([
    Sketcher.Constraint("Coincident", 0, 2, 1, 1),
    Sketcher.Constraint("Coincident", 1, 2, 2, 1),
    Sketcher.Constraint("Coincident", 2, 2, 3, 1),
    Sketcher.Constraint("Coincident", 3, 2, 0, 1),
    Sketcher.Constraint("Perpendicular", 0, 1),
    Sketcher.Constraint("Perpendicular", 1, 2),
    Sketcher.Constraint("Perpendicular", 2, 3),
    Sketcher.Constraint("Equal", 0, 1),
    Sketcher.Constraint("Distance", 0, Q("14 mm")),
    Sketcher.Constraint("DistanceY", -1, 1, 1, 2, Q("37.558279 mm")),
    Sketcher.Constraint("DistanceX", -1, 1, 2, 2, Q("77.559609 mm")),
    Sketcher.Constraint("DistanceY", -1, 1, 2, 2, Q("25.42915 mm")),
])
sketch21.setExpression("Constraints[8]", "Params.sketch21_length")
pad21 = doc.addObject("PartDesign::Pad", "Pad020")
body21.addObject(pad21)
pad21.Profile = sketch21
pad21.setExpression("Length", "Params.pad21_length")
pad21.Reversed = True

doc.recompute()
